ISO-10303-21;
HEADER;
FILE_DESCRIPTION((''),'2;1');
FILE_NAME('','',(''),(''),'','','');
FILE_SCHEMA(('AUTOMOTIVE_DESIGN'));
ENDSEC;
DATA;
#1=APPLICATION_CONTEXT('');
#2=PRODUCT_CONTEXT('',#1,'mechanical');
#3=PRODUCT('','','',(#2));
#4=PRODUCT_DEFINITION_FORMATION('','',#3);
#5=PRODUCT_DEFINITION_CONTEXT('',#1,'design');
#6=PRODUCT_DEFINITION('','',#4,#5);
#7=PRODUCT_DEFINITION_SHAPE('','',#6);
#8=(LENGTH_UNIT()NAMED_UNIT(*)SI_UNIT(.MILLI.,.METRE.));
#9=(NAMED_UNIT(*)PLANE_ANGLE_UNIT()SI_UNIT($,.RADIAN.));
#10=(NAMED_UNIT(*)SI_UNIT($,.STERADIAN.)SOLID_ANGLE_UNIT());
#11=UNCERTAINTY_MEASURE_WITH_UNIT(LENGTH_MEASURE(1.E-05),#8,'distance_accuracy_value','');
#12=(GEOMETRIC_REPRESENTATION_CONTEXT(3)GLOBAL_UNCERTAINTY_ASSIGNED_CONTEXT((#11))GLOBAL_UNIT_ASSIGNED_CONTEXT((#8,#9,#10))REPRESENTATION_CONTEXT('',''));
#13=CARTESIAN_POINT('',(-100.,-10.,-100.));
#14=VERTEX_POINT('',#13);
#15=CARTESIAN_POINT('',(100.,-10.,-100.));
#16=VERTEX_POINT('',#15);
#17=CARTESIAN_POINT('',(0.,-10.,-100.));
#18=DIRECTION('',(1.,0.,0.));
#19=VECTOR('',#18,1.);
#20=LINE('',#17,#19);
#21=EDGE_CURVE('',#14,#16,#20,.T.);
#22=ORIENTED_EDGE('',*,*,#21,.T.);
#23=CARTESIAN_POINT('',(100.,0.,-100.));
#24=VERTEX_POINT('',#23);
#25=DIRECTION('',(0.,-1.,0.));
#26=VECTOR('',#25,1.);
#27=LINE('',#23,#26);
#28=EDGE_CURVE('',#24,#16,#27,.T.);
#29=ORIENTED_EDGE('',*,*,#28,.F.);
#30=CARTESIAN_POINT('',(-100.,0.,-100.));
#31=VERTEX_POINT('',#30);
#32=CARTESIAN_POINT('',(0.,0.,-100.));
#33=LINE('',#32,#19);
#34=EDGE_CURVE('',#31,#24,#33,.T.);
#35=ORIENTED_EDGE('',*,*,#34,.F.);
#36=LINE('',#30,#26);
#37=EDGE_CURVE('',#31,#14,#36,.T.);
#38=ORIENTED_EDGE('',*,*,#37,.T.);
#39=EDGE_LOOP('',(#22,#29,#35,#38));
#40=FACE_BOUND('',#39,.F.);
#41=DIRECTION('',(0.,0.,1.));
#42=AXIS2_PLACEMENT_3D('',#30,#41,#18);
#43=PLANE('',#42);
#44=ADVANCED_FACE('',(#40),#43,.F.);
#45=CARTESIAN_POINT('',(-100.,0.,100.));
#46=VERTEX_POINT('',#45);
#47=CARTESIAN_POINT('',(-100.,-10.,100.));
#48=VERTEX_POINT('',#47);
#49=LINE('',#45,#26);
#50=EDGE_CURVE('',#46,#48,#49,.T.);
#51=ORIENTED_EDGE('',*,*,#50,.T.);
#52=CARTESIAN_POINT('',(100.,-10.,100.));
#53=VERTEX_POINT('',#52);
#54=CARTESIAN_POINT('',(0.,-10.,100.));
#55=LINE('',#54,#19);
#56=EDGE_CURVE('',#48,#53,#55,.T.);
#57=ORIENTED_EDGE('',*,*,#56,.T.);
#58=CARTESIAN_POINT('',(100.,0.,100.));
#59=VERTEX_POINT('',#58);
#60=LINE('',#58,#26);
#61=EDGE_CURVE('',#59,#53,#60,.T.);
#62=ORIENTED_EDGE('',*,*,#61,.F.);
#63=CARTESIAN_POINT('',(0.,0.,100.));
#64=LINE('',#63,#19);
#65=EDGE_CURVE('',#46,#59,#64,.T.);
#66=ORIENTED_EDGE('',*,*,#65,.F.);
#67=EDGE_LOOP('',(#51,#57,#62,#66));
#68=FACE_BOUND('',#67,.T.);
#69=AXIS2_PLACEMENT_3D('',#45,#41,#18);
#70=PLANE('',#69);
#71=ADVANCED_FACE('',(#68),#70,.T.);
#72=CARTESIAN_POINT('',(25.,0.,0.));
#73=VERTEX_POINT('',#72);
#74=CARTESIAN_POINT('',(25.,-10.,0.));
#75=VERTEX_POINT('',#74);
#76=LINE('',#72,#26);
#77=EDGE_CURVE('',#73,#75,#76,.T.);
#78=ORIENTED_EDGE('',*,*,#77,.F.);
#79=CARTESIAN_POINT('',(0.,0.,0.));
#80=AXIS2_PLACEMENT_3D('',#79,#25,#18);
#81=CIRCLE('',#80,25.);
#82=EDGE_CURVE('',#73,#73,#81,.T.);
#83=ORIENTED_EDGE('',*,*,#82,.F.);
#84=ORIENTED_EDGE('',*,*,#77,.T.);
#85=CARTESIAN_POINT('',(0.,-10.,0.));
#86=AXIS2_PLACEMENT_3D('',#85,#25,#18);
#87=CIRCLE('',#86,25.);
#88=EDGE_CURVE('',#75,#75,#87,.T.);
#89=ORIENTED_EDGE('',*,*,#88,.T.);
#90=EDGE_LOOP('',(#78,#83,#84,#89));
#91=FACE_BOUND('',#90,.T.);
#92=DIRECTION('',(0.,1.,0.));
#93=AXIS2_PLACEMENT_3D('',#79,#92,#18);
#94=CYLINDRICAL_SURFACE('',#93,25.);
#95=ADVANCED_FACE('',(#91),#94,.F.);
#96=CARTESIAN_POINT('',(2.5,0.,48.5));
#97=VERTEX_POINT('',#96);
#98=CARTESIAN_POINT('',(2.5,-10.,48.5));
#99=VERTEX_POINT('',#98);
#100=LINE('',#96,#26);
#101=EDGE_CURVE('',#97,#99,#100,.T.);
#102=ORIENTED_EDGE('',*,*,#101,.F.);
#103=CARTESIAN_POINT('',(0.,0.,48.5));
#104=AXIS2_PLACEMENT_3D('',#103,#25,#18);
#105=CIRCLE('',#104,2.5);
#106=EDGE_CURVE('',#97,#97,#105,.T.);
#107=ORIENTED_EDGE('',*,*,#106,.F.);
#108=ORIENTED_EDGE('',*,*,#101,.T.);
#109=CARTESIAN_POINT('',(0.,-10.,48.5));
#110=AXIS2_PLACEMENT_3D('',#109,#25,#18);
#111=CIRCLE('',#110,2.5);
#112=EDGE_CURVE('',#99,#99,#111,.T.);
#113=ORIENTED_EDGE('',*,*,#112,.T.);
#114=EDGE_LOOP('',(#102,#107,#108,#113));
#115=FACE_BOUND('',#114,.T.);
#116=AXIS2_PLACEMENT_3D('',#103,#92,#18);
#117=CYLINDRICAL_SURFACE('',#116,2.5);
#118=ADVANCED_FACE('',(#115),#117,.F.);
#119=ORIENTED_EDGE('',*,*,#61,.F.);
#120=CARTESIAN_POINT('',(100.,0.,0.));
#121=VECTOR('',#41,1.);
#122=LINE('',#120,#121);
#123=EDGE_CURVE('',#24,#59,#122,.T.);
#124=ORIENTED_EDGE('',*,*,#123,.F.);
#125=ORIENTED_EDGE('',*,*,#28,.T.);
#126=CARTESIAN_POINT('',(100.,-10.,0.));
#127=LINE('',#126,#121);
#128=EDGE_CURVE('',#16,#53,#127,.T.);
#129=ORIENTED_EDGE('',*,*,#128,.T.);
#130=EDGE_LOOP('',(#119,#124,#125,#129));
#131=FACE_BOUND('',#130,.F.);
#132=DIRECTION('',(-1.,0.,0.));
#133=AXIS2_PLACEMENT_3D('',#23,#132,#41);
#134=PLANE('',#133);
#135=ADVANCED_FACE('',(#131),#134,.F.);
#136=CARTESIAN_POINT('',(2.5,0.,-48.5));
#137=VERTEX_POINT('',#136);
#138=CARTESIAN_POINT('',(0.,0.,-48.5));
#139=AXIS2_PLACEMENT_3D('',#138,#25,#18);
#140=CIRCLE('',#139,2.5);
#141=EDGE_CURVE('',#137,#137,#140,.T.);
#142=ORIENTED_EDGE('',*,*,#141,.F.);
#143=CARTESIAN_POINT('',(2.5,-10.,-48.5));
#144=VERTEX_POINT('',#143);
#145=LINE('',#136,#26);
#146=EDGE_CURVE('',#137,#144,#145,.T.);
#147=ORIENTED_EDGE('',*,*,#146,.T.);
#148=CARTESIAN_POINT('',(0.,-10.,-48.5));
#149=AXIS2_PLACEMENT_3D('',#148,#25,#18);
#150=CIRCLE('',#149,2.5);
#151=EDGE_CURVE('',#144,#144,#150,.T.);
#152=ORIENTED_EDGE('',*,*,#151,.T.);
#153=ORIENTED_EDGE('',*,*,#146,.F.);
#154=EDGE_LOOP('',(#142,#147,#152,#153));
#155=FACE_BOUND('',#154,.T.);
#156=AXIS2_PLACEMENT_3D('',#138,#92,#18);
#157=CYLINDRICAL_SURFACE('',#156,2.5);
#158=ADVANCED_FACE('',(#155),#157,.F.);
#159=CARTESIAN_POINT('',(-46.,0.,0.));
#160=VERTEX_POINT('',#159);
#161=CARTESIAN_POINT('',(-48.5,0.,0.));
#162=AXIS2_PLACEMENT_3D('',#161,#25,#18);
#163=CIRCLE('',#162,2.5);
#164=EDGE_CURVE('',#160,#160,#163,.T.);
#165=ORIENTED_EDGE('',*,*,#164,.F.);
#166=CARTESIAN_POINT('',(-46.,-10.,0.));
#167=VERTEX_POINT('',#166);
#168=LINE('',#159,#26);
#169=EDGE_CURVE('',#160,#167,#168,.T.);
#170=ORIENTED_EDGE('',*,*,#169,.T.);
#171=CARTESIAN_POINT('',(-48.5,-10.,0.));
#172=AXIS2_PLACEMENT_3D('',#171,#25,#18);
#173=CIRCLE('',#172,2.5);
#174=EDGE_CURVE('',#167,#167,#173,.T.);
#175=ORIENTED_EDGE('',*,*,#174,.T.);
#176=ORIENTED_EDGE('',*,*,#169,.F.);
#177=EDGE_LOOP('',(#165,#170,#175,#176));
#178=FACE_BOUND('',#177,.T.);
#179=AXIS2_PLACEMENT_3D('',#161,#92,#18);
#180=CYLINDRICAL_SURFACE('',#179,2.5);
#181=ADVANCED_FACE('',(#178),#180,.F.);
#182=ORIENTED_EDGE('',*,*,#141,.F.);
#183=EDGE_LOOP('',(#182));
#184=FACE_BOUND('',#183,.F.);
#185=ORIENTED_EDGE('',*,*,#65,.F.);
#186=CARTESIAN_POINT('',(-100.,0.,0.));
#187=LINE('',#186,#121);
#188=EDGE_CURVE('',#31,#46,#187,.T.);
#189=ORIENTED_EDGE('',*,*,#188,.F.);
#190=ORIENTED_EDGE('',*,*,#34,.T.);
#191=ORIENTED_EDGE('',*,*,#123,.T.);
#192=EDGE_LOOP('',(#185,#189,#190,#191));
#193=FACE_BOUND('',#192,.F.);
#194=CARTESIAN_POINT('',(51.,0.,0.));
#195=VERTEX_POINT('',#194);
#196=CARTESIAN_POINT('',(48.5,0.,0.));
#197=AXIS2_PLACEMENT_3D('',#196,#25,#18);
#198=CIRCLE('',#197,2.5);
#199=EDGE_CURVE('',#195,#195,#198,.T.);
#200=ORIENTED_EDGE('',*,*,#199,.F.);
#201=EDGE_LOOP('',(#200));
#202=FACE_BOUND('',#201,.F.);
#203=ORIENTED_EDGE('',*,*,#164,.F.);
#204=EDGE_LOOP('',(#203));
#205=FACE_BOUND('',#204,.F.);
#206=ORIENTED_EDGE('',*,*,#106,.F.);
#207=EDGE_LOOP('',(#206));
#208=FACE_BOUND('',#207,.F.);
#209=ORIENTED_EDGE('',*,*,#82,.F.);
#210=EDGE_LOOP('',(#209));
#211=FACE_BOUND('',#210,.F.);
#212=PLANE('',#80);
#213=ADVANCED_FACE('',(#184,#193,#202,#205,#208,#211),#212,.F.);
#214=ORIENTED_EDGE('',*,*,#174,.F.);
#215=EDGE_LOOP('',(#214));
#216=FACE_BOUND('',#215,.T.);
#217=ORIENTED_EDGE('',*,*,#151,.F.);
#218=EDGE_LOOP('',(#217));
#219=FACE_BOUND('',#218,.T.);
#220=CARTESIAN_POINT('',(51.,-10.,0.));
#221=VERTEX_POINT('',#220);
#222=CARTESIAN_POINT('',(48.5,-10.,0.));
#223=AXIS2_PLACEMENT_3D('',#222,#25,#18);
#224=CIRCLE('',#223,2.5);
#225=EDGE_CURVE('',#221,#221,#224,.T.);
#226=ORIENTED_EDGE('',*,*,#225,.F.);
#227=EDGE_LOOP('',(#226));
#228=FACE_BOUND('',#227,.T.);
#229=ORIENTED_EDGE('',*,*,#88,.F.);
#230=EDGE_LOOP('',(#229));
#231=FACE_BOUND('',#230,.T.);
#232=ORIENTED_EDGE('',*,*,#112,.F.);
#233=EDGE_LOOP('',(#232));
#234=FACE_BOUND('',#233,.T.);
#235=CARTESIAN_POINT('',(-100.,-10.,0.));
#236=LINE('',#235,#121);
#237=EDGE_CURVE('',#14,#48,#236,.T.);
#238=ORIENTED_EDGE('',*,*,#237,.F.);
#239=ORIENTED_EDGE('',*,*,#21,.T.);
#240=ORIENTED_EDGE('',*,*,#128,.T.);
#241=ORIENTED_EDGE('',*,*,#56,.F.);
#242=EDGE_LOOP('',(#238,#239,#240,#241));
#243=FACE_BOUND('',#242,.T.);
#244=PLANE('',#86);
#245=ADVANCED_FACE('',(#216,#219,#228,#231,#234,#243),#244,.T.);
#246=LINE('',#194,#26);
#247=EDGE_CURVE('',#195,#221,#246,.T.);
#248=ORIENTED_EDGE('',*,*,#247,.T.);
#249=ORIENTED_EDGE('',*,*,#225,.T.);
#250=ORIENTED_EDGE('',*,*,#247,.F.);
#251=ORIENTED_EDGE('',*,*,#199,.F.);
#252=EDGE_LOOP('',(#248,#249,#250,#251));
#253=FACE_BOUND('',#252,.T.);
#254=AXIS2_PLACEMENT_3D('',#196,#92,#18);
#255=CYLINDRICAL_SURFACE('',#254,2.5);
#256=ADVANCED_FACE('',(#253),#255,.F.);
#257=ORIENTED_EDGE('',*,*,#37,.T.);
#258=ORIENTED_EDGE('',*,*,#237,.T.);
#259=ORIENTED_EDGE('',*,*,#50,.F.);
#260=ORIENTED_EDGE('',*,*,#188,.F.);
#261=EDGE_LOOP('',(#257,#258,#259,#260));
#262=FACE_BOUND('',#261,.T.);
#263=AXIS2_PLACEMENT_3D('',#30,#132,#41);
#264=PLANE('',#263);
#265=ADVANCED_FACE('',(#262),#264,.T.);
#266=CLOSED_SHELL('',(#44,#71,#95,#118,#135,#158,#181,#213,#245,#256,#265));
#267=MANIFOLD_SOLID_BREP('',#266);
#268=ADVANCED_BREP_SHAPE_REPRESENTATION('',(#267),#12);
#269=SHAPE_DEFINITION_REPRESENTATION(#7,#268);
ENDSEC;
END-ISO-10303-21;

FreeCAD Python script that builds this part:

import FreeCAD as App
import Part
import Sketcher
from FreeCAD import Vector


def add_polygon(sketch, points):
    """Adds a closed chain of lines whose ends are joined by coincident constraints."""
    first, n = sketch.GeometryCount, len(points)
    for a, b in zip(points, points[1:] + points[:1]):
        sketch.addGeometry(Part.LineSegment(App.Vector(*a, 0), App.Vector(*b, 0)), False)
    for i in range(n):
        sketch.addConstraint(Sketcher.Constraint("Coincident", first + i, 2, first + (i + 1) % n, 1))

doc = App.newDocument("Part")
params = doc.addObject("Spreadsheet::Sheet", "Params")
for row, (alias, value) in enumerate([
    ("sketch1_diameter", "5 mm"),
    ("sketch1_diameter2", "50 mm"),
    ("sketch1_width", "200 mm"),
    ("pad1_length", "10 mm"),
], start=1):
    params.set(f"A{row}", alias)
    params.set(f"B{row}", "=" + value)
    params.setAlias(f"B{row}", alias)

body = doc.addObject("PartDesign::Body", "Body")

# Sketch on XZ plane
sketch1 = body.newObject("Sketcher::SketchObject", "Sketch")
sketch1.AttachmentSupport = (doc.getObject("XZ_Plane"), [""])
sketch1.MapMode = "FlatFace"
add_polygon(sketch1, [(-100, 100), (-100, -100), (100, -100), (100, 100)])  # lines 0-3
sketch1.addGeometry(Part.Circle(Vector(0, -48.5, 0), Vector(0, 0, 1), 2.5), False)  # 4
sketch1.addGeometry(Part.Circle(Vector(-48.5, 0, 0), Vector(0, 0, 1), 2.5), False)  # 5
sketch1.addGeometry(Part.Circle(Vector(0, 0, 0), Vector(0, 0, 1), 25), False)  # 6
sketch1.addGeometry(Part.Circle(Vector(48.5, 0, 0), Vector(0, 0, 1), 2.5), False)  # 7
sketch1.addGeometry(Part.Circle(Vector(0, 48.5, 0), Vector(0, 0, 1), 2.5), False)  # 8
sketch1.addConstraint([
    Sketcher.Constraint("Vertical", 0),
    Sketcher.Constraint("Horizontal", 1),
    Sketcher.Constraint("Vertical", 2),
    Sketcher.Constraint("Horizontal", 3),
    Sketcher.Constraint("Coincident", 6, 3, -1, 1),
    Sketcher.Constraint("Equal", 4, 5),
    Sketcher.Constraint("Equal", 5, 7),
    Sketcher.Constraint("Equal", 7, 8),
    Sketcher.Constraint("Symmetric", 5, 3, 7, 3, -1, 1),
    Sketcher.Constraint("Symmetric", 4, 3, 8, 3, -1, 1),
    Sketcher.Constraint("Symmetric", 0, 2, 2, 2, -1, 1),
    Sketcher.Constraint("PointOnObject", 4, 3, -2),
    Sketcher.Constraint("PointOnObject", 5, 3, -1),
    Sketcher.Constraint("Equal", 3, 0),
    Sketcher.Constraint("Diameter", 4, 5.0),
    Sketcher.Constraint("Diameter", 6, 50.0),
    Sketcher.Constraint("DistanceX", 1, 1, 1, 2, 200.0),
    Sketcher.Constraint("DistanceX", 5, 3, 7, 3, 97.0),
    Sketcher.Constraint("DistanceY", 4, 3, 8, 3, 97.0),
])
sketch1.setExpression("Constraints[18]", "Params.sketch1_diameter")
sketch1.setExpression("Constraints[19]", "Params.sketch1_diameter2")
sketch1.setExpression("Constraints[20]", "Params.sketch1_width")
pad1 = body.newObject("PartDesign::Pad", "Pad")
pad1.Profile = sketch1
pad1.setExpression("Length", "Params.pad1_length")

doc.recompute()
